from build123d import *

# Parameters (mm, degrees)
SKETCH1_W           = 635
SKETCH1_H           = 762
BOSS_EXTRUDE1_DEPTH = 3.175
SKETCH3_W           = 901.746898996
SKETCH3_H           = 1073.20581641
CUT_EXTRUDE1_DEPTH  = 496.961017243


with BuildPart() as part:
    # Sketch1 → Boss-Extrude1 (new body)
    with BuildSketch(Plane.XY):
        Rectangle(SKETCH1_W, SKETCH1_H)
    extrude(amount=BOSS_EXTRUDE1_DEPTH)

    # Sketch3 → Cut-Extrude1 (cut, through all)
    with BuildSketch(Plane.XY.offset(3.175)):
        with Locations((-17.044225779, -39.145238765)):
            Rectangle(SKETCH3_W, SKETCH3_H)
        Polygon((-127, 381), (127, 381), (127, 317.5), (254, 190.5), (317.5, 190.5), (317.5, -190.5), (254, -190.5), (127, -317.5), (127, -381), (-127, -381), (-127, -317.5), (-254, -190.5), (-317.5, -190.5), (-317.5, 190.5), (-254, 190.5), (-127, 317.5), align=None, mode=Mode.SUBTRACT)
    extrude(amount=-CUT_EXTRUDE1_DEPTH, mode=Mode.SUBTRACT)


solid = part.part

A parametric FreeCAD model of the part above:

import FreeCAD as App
import Part
import Sketcher

V = App.Vector
Q = App.Units.Quantity


def add_polygon(sketch, points):
    """Adds a closed chain of lines whose ends are joined by coincident constraints."""
    first, n = sketch.GeometryCount, len(points)
    for a, b in zip(points, points[1:] + points[:1]):
        sketch.addGeometry(Part.LineSegment(App.Vector(*a, 0), App.Vector(*b, 0)), False)
    for i in range(n):
        sketch.addConstraint(Sketcher.Constraint("Coincident", first + i, 2, first + (i + 1) % n, 1))

doc = App.newDocument("Part")
body = doc.addObject("PartDesign::Body", "Body")

sketch1 = doc.addObject("Sketcher::SketchObject", "Sketch")
body.addObject(sketch1)
sketch1.AttachmentSupport = (doc.XY_Plane, [""])
sketch1.MapMode = "FlatFace"
add_polygon(sketch1, [(-318, 381), (-318, -381), (318, -381), (318, 381)])
sketch1.addConstraint([
    Sketcher.Constraint("Vertical", 0),
    Sketcher.Constraint("Horizontal", 1),
    Sketcher.Constraint("Vertical", 2),
    Sketcher.Constraint("Horizontal", 3),
    Sketcher.Constraint("Symmetric", 0, 2, 2, 2, -1, 1),
    Sketcher.Constraint("DistanceX", 1, 1, 1, 2, Q("25 in")),
    Sketcher.Constraint("DistanceY", 0, 2, 0, 1, Q("30 in")),
])
pad1 = doc.addObject("PartDesign::Pad", "Pad")
body.addObject(pad1)
pad1.Profile = sketch1
pad1.Length = Q("0.125 in")

sketch2 = doc.addObject("Sketcher::SketchObject", "Sketch001")
body.addObject(sketch2)
sketch2.AttachmentSupport = (doc.XY_Plane, [""])
sketch2.MapMode = "FlatFace"
sketch2.AttachmentOffset = App.Placement(V(0, 0, 0.125 * 25.4), App.Rotation())
add_polygon(sketch2, [(-468, 497), (-468, -576), (434, -576), (434, 497)])
add_polygon(sketch2, [(-127, 318), (-127, 381), (127, 381), (127, 318), (254, 190), (318, 190), (318, -190), (254, -190), (127, -318), (127, -381), (-127, -381), (-127, -318), (-254, -190), (-318, -190), (-318, 190), (-254, 190)])
sketch2.addConstraint([
    Sketcher.Constraint("Vertical", 0),
    Sketcher.Constraint("Horizontal", 1),
    Sketcher.Constraint("Vertical", 2),
    Sketcher.Constraint("Horizontal", 3),
    Sketcher.Constraint("Vertical", 4),
    Sketcher.Constraint("Horizontal", 5),
    Sketcher.Constraint("Vertical", 6),
    Sketcher.Constraint("Horizontal", 8),
    Sketcher.Constraint("Vertical", 9),
    Sketcher.Constraint("Horizontal", 10),
    Sketcher.Constraint("Vertical", 12),
    Sketcher.Constraint("Horizontal", 13),
    Sketcher.Constraint("Vertical", 14),
    Sketcher.Constraint("Horizontal", 16),
    Sketcher.Constraint("Vertical", 17),
    Sketcher.Constraint("Horizontal", 18),
    Sketcher.Constraint("Symmetric", 4, 2, 12, 2, -1, 1),
    Sketcher.Constraint("Symmetric", 6, 2, 14, 2, -1, 1),
    Sketcher.Constraint("Symmetric", 7, 2, 15, 2, -1, 1),
    Sketcher.Constraint("Symmetric", 9, 2, 17, 2, -1, 1),
    Sketcher.Constraint("Symmetric", 11, 2, 14, 2, -2),
    Sketcher.Constraint("Symmetric", 10, 2, 15, 2, -2),
    Sketcher.Constraint("Perpendicular", 7, 11),
    Sketcher.Constraint("Perpendicular", 15, 19),
    Sketcher.Constraint("Horizontal", 6, 2, 19, 2),
    Sketcher.Constraint("Equal", 18, 4),
    Sketcher.Constraint("DistanceX", 5, 1, 5, 2, Q("10 in")),
    Sketcher.Constraint("DistanceY", 9, 2, 9, 1, Q("15 in")),
    Sketcher.Constraint("DistanceX", 8, 1, 8, 2, Q("2.5 in")),
    Sketcher.Constraint("DistanceY", -1, 1, 4, 2, Q("15 in")),
    Sketcher.Constraint("DistanceX", 1, 1, 1, 2, Q("901.746899 mm")),
    Sketcher.Constraint("DistanceY", 0, 2, 0, 1, Q("1073.205816 mm")),
    Sketcher.Constraint("DistanceY", -1, 1, 2, 2, Q("497.457669 mm")),
    Sketcher.Constraint("DistanceX", 0, 2, -1, 1, Q("467.917675 mm")),
])
pocket1 = doc.addObject("PartDesign::Pocket", "Pocket")
body.addObject(pocket1)
pocket1.Profile = sketch2
pocket1.Type = "ThroughAll"

doc.recompute()
